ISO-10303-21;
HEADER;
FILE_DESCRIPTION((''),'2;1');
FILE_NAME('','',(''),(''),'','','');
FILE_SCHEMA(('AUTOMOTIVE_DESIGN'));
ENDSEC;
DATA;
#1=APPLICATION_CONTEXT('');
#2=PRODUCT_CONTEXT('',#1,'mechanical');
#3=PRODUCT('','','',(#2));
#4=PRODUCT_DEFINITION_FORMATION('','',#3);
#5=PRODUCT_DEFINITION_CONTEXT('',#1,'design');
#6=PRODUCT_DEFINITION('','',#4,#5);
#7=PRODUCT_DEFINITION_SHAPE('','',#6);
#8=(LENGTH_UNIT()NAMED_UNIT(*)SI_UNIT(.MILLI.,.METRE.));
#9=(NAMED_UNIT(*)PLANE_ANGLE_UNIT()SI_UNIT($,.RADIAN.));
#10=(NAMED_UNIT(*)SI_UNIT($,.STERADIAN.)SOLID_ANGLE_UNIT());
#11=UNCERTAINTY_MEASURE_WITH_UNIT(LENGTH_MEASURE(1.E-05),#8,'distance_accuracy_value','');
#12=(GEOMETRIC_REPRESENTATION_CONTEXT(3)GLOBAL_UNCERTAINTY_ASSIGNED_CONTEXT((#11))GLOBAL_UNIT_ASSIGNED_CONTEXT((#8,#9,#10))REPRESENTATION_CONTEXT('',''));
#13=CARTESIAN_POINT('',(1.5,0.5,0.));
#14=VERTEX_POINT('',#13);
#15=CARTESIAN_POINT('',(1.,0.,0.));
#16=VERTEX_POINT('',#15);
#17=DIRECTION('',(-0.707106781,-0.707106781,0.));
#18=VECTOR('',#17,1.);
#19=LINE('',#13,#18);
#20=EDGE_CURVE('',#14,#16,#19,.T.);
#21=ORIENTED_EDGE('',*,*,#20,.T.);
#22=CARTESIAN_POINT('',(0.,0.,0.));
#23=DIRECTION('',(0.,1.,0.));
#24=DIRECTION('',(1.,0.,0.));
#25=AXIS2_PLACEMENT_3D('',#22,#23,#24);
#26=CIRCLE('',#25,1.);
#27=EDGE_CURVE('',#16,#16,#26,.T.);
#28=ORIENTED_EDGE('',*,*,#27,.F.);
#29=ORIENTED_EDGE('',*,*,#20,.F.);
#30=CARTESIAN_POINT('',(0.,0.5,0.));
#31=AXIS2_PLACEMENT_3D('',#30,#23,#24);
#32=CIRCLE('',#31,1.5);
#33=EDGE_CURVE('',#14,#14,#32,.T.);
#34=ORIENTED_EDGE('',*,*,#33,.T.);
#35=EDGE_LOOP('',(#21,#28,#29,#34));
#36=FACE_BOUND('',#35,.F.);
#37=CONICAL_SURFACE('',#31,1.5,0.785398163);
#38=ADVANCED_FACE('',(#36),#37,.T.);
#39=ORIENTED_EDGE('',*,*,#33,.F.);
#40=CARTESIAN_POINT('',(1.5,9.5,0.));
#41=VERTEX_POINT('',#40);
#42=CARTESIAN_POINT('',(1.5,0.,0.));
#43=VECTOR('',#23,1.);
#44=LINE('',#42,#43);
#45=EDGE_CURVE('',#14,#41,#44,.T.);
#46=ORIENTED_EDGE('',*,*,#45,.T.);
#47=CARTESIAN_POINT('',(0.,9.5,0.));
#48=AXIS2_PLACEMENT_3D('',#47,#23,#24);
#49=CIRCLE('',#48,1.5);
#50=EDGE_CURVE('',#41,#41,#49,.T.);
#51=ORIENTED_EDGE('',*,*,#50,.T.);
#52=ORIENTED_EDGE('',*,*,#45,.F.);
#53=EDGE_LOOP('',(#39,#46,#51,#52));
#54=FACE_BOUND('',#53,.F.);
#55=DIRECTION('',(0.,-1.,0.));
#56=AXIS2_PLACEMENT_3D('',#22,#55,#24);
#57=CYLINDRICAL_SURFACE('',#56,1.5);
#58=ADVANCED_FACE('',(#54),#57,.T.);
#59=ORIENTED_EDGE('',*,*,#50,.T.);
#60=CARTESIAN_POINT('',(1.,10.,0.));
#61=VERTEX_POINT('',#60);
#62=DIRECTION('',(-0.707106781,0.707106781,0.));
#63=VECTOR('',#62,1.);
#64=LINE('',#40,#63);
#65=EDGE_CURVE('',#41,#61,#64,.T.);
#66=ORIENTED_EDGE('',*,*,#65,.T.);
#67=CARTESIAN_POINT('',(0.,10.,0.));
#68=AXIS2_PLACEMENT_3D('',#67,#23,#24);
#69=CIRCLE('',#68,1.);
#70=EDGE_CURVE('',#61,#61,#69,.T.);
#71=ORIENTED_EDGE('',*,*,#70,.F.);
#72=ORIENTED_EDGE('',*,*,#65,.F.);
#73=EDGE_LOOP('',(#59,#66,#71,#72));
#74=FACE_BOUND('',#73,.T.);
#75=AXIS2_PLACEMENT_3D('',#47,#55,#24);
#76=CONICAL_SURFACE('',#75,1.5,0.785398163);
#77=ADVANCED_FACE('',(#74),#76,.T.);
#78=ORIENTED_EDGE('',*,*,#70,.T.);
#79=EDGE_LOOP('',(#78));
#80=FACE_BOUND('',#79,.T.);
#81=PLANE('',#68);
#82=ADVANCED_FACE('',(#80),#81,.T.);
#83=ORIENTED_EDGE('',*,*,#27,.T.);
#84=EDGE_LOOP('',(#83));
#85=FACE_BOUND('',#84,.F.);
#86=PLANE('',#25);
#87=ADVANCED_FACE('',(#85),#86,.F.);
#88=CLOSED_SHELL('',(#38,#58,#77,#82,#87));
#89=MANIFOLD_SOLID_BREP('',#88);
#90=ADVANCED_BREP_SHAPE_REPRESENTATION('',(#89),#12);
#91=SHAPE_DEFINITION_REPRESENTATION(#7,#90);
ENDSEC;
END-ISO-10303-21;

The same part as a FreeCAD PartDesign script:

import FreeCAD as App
import Part
import Sketcher

V = App.Vector
Q = App.Units.Quantity


def edges_at(feature, points):
    """Names of the edges that pass closest to the given points."""
    edges = feature.Shape.Edges
    near = lambda p: min(range(len(edges)), key=lambda i: edges[i].distToShape(Part.Vertex(*p))[0])
    return sorted({f"Edge{near(p) + 1}" for p in points})

doc = App.newDocument("Part")
params = doc.addObject("Spreadsheet::Sheet", "Params")
for row, (alias, value) in enumerate([
    ("sketch1_diameter", "3 mm"),
    ("pad1_length", "10 mm"),
    ("chamfer_size", "0.5 mm"),
], start=1):
    params.set(f"A{row}", alias)
    params.set(f"B{row}", "=" + value)
    params.setAlias(f"B{row}", alias)

body = doc.addObject("PartDesign::Body", "Body")

# Sketch on XZ plane
sketch1 = body.newObject("Sketcher::SketchObject", "Sketch")
sketch1.AttachmentSupport = (doc.getObject("XZ_Plane"), [""])
sketch1.MapMode = "FlatFace"
sketch1.addGeometry(Part.Circle(V(0, 0, 0), V(0, 0, 1), 1.5), False)
sketch1.addConstraint(Sketcher.Constraint("Coincident", 0, 3, -1, 1))
sketch1.addConstraint(Sketcher.Constraint("Diameter", 0, Q("3 mm")))
sketch1.setExpression("Constraints[1]", "Params.sketch1_diameter")
pad1 = body.newObject("PartDesign::Pad", "Pad")
pad1.Profile = sketch1
pad1.setExpression("Length", "Params.pad1_length")
pad1.Reversed = True
doc.recompute()

chamfer = body.newObject("PartDesign::Chamfer", "Chamfer")
chamfer.Base = (pad1, edges_at(pad1, [(-1.5, 0, 0), (-1.5, 10, 0)]))
chamfer.setExpression("Size", "Params.chamfer_size")

doc.recompute()
